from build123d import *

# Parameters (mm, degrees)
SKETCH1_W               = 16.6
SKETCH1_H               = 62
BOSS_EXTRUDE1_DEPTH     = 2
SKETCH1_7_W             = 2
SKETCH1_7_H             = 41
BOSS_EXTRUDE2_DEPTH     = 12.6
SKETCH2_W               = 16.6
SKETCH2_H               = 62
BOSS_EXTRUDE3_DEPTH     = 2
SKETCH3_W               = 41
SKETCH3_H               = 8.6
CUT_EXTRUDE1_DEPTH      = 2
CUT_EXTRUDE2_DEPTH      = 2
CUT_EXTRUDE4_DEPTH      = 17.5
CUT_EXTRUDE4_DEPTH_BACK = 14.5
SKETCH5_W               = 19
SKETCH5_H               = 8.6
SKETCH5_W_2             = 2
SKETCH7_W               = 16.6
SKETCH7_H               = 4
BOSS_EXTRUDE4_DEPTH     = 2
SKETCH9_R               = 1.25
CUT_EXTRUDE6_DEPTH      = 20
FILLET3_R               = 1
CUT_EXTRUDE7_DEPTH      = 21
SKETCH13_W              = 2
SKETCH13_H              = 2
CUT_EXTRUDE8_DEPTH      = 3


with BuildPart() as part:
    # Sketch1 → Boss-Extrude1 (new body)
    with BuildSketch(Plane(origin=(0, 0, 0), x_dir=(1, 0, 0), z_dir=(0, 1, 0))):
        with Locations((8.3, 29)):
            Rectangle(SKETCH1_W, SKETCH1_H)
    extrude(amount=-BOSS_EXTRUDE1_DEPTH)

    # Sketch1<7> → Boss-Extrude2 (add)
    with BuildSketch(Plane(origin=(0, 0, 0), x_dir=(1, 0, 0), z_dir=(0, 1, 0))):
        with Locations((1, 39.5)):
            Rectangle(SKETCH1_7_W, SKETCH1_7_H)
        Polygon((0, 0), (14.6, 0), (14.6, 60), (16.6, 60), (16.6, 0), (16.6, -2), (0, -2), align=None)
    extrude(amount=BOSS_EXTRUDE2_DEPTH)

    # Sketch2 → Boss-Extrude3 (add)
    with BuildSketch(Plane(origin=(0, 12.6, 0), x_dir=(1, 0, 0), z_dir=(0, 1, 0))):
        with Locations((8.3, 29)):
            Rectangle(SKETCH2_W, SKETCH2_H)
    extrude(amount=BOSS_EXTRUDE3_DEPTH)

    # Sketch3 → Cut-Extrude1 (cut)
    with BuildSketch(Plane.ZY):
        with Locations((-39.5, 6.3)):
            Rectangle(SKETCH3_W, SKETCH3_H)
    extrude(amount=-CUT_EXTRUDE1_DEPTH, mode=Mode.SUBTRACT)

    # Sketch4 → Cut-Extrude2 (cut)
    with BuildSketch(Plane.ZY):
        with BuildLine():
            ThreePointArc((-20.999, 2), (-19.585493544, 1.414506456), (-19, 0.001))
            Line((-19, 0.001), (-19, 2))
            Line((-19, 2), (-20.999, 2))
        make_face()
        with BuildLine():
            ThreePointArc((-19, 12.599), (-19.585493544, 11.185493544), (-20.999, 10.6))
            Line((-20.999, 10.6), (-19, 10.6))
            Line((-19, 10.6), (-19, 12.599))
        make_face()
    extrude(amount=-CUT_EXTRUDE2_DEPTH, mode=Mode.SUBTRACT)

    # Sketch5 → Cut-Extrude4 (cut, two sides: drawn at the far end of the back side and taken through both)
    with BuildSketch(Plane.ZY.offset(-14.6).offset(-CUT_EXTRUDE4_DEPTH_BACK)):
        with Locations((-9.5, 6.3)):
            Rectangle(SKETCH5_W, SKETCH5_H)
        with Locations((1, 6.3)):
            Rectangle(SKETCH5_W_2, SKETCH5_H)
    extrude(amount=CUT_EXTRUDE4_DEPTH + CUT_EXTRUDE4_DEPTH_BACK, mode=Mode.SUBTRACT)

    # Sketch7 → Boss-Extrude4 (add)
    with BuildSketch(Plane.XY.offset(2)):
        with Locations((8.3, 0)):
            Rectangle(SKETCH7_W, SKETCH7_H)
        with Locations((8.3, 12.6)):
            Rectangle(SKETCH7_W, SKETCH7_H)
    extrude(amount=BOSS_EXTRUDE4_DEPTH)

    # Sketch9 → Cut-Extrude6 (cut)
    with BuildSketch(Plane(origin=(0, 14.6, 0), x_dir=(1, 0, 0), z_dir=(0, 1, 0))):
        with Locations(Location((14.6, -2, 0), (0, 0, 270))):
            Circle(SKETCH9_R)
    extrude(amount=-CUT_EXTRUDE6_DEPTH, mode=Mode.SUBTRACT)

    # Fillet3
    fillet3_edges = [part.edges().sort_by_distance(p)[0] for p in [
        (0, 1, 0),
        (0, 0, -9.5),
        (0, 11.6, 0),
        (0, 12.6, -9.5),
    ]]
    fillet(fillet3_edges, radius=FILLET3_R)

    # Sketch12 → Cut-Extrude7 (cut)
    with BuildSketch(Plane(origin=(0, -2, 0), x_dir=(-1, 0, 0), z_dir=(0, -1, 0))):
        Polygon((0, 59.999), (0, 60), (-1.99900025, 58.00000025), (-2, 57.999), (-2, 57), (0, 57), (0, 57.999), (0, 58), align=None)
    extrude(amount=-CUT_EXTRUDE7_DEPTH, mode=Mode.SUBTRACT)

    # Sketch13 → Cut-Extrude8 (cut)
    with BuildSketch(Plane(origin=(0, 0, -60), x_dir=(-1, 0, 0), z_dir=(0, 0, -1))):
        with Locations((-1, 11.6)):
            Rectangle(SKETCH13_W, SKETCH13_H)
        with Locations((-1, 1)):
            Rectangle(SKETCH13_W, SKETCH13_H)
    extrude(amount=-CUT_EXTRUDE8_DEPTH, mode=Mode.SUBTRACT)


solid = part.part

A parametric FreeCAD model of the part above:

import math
import FreeCAD as App
import Part
import Sketcher


def edges_at(feature, points):
    """Names of the edges that pass closest to the given points."""
    edges = feature.Shape.Edges
    near = lambda p: min(range(len(edges)), key=lambda i: edges[i].distToShape(Part.Vertex(*p))[0])
    return sorted({f"Edge{near(p) + 1}" for p in points})


def add_polygon(sketch, points):
    """Adds a closed chain of lines whose ends are joined by coincident constraints."""
    first, n = sketch.GeometryCount, len(points)
    for a, b in zip(points, points[1:] + points[:1]):
        sketch.addGeometry(Part.LineSegment(App.Vector(*a, 0), App.Vector(*b, 0)), False)
    for i in range(n):
        sketch.addConstraint(Sketcher.Constraint("Coincident", first + i, 2, first + (i + 1) % n, 1))

doc = App.newDocument("Part")
body = doc.addObject("PartDesign::Body", "Body")

# Sketch on XZ plane
sketch1 = body.newObject("Sketcher::SketchObject", "Sketch")
sketch1.AttachmentSupport = (doc.getObject("XZ_Plane"), [""])
sketch1.MapMode = "FlatFace"
add_polygon(sketch1, [(0, -60), (0, 2), (17, 2), (17, -60)])  # lines 0-3
sketch1.addConstraint([
    Sketcher.Constraint("Vertical", 0),
    Sketcher.Constraint("Horizontal", 1),
    Sketcher.Constraint("Vertical", 2),
    Sketcher.Constraint("Horizontal", 3),
    Sketcher.Constraint("PointOnObject", 0, 2, -2),
    Sketcher.Constraint("DistanceY", 0, 1, 0, 2, 62.0),
    Sketcher.Constraint("DistanceX", 1, 1, 1, 2, 16.6),
    Sketcher.Constraint("DistanceY", -1, 1, 0, 2, 2.0),
])
pad1 = body.newObject("PartDesign::Pad", "Pad")
pad1.Profile = sketch1
pad1.Length = 2

# Sketch on XZ plane
sketch2 = body.newObject("Sketcher::SketchObject", "Sketch001")
sketch2.AttachmentSupport = (doc.getObject("XZ_Plane"), [""])
sketch2.MapMode = "FlatFace"
add_polygon(sketch2, [(0, -60), (0, -19), (2, -19), (2, -60)])  # lines 0-3
add_polygon(sketch2, [(14.6, 0), (0, 0), (0, 2), (16.6, 2), (16.6, -60), (14.6, -60)])  # lines 4-9
sketch2.addConstraint([
    Sketcher.Constraint("Vertical", 0),
    Sketcher.Constraint("Horizontal", 1),
    Sketcher.Constraint("Vertical", 2),
    Sketcher.Constraint("Horizontal", 3),
    Sketcher.Constraint("Horizontal", 4),
    Sketcher.Constraint("Vertical", 5),
    Sketcher.Constraint("Horizontal", 6),
    Sketcher.Constraint("Vertical", 7),
    Sketcher.Constraint("Horizontal", 8),
    Sketcher.Constraint("Vertical", 9),
    Sketcher.Constraint("Coincident", 4, 2, -1, 1),
    Sketcher.Constraint("PointOnObject", 0, 2, -2),
    Sketcher.Constraint("Horizontal", 3, 2, 7, 2),
    Sketcher.Constraint("Equal", 3, 8),
    Sketcher.Constraint("Equal", 8, 5),
    Sketcher.Constraint("DistanceX", 1, 1, 1, 2, 2.0),
    Sketcher.Constraint("DistanceY", 0, 1, 0, 2, 41.0),
    Sketcher.Constraint("DistanceY", 7, 2, 7, 1, 62.0),
    Sketcher.Constraint("DistanceX", 4, 2, 4, 1, 14.6),
])
pad2 = body.newObject("PartDesign::Pad", "Pad001")
pad2.Profile = sketch2
pad2.Length = 12.6
pad2.Reversed = True

# Sketch on XZ plane
sketch3 = body.newObject("Sketcher::SketchObject", "Sketch002")
sketch3.AttachmentSupport = (doc.getObject("XZ_Plane"), [""])
sketch3.MapMode = "FlatFace"
sketch3.AttachmentOffset = App.Placement(App.Vector(0, 0, -12.6), App.Rotation())
add_polygon(sketch3, [(0, -60), (0, 2), (17, 2), (17, -60)])  # lines 0-3
sketch3.addConstraint([
    Sketcher.Constraint("Vertical", 0),
    Sketcher.Constraint("Horizontal", 1),
    Sketcher.Constraint("Vertical", 2),
    Sketcher.Constraint("Horizontal", 3),
    Sketcher.Constraint("PointOnObject", 0, 2, -2),
    Sketcher.Constraint("DistanceY", 0, 1, 0, 2, 62.0),
    Sketcher.Constraint("DistanceX", 1, 1, 1, 2, 16.6),
    Sketcher.Constraint("DistanceY", -1, 1, 0, 2, 2.0),
])
pad3 = body.newObject("PartDesign::Pad", "Pad002")
pad3.Profile = sketch3
pad3.Length = 2
pad3.Reversed = True

# Sketch on YZ plane
sketch4 = body.newObject("Sketcher::SketchObject", "Sketch003")
sketch4.AttachmentSupport = (doc.getObject("YZ_Plane"), [""])
sketch4.MapMode = "FlatFace"
add_polygon(sketch4, [(11, -60), (2, -60), (2, -19), (11, -19)])  # lines 0-3
sketch4.addConstraint([
    Sketcher.Constraint("Horizontal", 0),
    Sketcher.Constraint("Vertical", 1),
    Sketcher.Constraint("Horizontal", 2),
    Sketcher.Constraint("Vertical", 3),
    Sketcher.Constraint("DistanceY", 1, 1, 1, 2, 41.0),
    Sketcher.Constraint("DistanceX", 0, 2, 0, 1, 8.6),
    Sketcher.Constraint("DistanceX", -1, 1, 0, 2, 2.0),
    Sketcher.Constraint("DistanceY", 0, 2, -1, 1, 60.0),
])
pocket1 = body.newObject("PartDesign::Pocket", "Pocket")
pocket1.Profile = sketch4
pocket1.Length = 2
pocket1.Reversed = True

# Sketch on YZ plane
sketch5 = body.newObject("Sketcher::SketchObject", "Sketch004")
sketch5.AttachmentSupport = (doc.getObject("YZ_Plane"), [""])
sketch5.MapMode = "FlatFace"
sketch5.addGeometry([
    Part.ArcOfCircle(Part.Circle(App.Vector(0, -21, 0), App.Vector(0, 0, 1), 2), math.radians(0), math.radians(90)),  # 0
    Part.LineSegment(App.Vector(0, -19, 0), App.Vector(2, -19, 0)),  # 1
    Part.LineSegment(App.Vector(2, -19, 0), App.Vector(2, -21, 0)),  # 2
    Part.ArcOfCircle(Part.Circle(App.Vector(12.6, -21, 0), App.Vector(0, 0, 1), 2), math.radians(90), math.radians(180)),  # 3
    Part.LineSegment(App.Vector(10.6, -21, 0), App.Vector(10.6, -19, 0)),  # 4
    Part.LineSegment(App.Vector(10.6, -19, 0), App.Vector(12.6, -19, 0)),  # 5
], False)
sketch5.addConstraint([
    Sketcher.Constraint("Tangent", 0, 2, 1, 1),
    Sketcher.Constraint("Coincident", 1, 2, 2, 1),
    Sketcher.Constraint("Tangent", 2, 2, 0, 1),
    Sketcher.Constraint("Tangent", 3, 2, 4, 1),
    Sketcher.Constraint("Coincident", 4, 2, 5, 1),
    Sketcher.Constraint("Tangent", 5, 2, 3, 1),
    Sketcher.Constraint("Horizontal", 1),
    Sketcher.Constraint("Vertical", 2),
    Sketcher.Constraint("Vertical", 4),
    Sketcher.Constraint("Horizontal", 5),
    Sketcher.Constraint("Equal", 0, 3),
    Sketcher.Constraint("Horizontal", 0, 3, 3, 3),
    Sketcher.Constraint("DistanceY", 0, 2, -1, 1, 19.0),
    Sketcher.Constraint("DistanceX", -1, 1, 1, 2, 2.0),
    Sketcher.Constraint("Radius", 0, 1.999),
    Sketcher.Constraint("DistanceX", -1, 1, 3, 2, 10.6),
])
pocket2 = body.newObject("PartDesign::Pocket", "Pocket001")
pocket2.Profile = sketch5
pocket2.Length = 2
pocket2.Reversed = True

# Sketch on YZ plane
sketch6 = body.newObject("Sketcher::SketchObject", "Sketch005")
sketch6.AttachmentSupport = (doc.getObject("YZ_Plane"), [""])
sketch6.MapMode = "FlatFace"
sketch6.AttachmentOffset = App.Placement(App.Vector(0, 0, 14.6), App.Rotation())
add_polygon(sketch6, [(11, -19), (2, -19), (2, 2), (11, 2)])  # lines 0-3
sketch6.addConstraint([
    Sketcher.Constraint("Horizontal", 0),
    Sketcher.Constraint("Vertical", 1),
    Sketcher.Constraint("Horizontal", 2),
    Sketcher.Constraint("Vertical", 3),
    Sketcher.Constraint("DistanceY", 1, 1, 1, 2, 21.0),
    Sketcher.Constraint("DistanceX", 0, 2, 0, 1, 8.6),
    Sketcher.Constraint("DistanceX", -1, 1, 0, 2, 2.0),
    Sketcher.Constraint("DistanceY", 0, 2, -1, 1, 19.0),
])
pocket3 = body.newObject("PartDesign::Pocket", "Pocket002")
pocket3.Profile = sketch6
pocket3.Type = "ThroughAll"
pocket3.Midplane = True

# Sketch on XY plane
sketch7 = body.newObject("Sketcher::SketchObject", "Sketch006")
sketch7.AttachmentSupport = (doc.getObject("XY_Plane"), [""])
sketch7.MapMode = "FlatFace"
sketch7.AttachmentOffset = App.Placement(App.Vector(0, 0, 2), App.Rotation())
add_polygon(sketch7, [(0, 2), (0, -2), (16.6, -2), (16.6, 2)])  # lines 0-3
add_polygon(sketch7, [(0, 14.6), (0, 10.6), (16.6, 10.6), (16.6, 14.6)])  # lines 4-7
sketch7.addConstraint([
    Sketcher.Constraint("Vertical", 0),
    Sketcher.Constraint("Horizontal", 1),
    Sketcher.Constraint("Vertical", 2),
    Sketcher.Constraint("Horizontal", 3),
    Sketcher.Constraint("Vertical", 4),
    Sketcher.Constraint("Horizontal", 5),
    Sketcher.Constraint("Vertical", 6),
    Sketcher.Constraint("Horizontal", 7),
    Sketcher.Constraint("Symmetric", 0, 2, 3, 2, -1, 1),
    Sketcher.Constraint("PointOnObject", 4, 2, -2),
    Sketcher.Constraint("Vertical", 2, 2, 5, 2),
    Sketcher.Constraint("Equal", 2, 4),
    Sketcher.Constraint("DistanceY", 0, 2, 0, 1, 4.0),
    Sketcher.Constraint("DistanceX", 1, 1, 1, 2, 16.6),
    Sketcher.Constraint("DistanceY", -1, 1, 4, 2, 10.6),
])
pad4 = body.newObject("PartDesign::Pad", "Pad003")
pad4.Profile = sketch7
pad4.Length = 2

# Sketch on XZ plane
sketch8 = body.newObject("Sketcher::SketchObject", "Sketch007")
sketch8.AttachmentSupport = (doc.getObject("XZ_Plane"), [""])
sketch8.MapMode = "FlatFace"
sketch8.AttachmentOffset = App.Placement(App.Vector(0, 0, -14.6), App.Rotation())
sketch8.addGeometry(Part.Circle(App.Vector(14.6, 2, 0), App.Vector(0, 0, 1), 1.2), False)
sketch8.addConstraint([
    Sketcher.Constraint("Diameter", 0, 2.5),
    Sketcher.Constraint("DistanceY", -1, 1, 0, 3, 2.0),
    Sketcher.Constraint("DistanceX", -1, 1, 0, 3, 14.6),
])
pocket4 = body.newObject("PartDesign::Pocket", "Pocket003")
pocket4.Profile = sketch8
pocket4.Length = 20
pocket4.Reversed = True
doc.recompute()

fillet = body.newObject("PartDesign::Fillet", "Fillet")
fillet.Base = (pocket4, edges_at(pocket4, [
    (0, 1, 0),
    (0, 0, -9.5),
    (0, 11.6, 0),
    (0, 12.6, -9.5),
]))
fillet.Radius = 1

# Sketch on XZ plane
sketch9 = body.newObject("Sketcher::SketchObject", "Sketch008")
sketch9.AttachmentSupport = (doc.getObject("XZ_Plane"), [""])
sketch9.MapMode = "FlatFace"
sketch9.AttachmentOffset = App.Placement(App.Vector(0, 0, 2), App.Rotation())
add_polygon(sketch9, [(0, -60), (1.999, -58), (2, -57.999), (2, -57), (0, -57)])  # lines 0-4
sketch9.addConstraint([
    Sketcher.Constraint("Vertical", 2),
    Sketcher.Constraint("Horizontal", 3),
    Sketcher.Constraint("Vertical", 4),
    Sketcher.Constraint("PointOnObject", 3, 2, -2),
    Sketcher.Constraint("Parallel", 0, 1),
    Sketcher.Constraint("DistanceX", 3, 2, 3, 1, 2.0),
    Sketcher.Constraint("DistanceY", 4, 2, 4, 1, 3.0),
    Sketcher.Constraint("DistanceY", 0, 2, -1, 1, 58.0),
    Sketcher.Constraint("DistanceY", 2, 2, -1, 1, 57.0),
    Sketcher.Constraint("DistanceY", 2, 1, 2, 2, 0.999),
])
pocket5 = body.newObject("PartDesign::Pocket", "Pocket004")
pocket5.Profile = sketch9
pocket5.Length = 21

# Sketch on XY plane
sketch10 = body.newObject("Sketcher::SketchObject", "Sketch009")
sketch10.AttachmentSupport = (doc.getObject("XY_Plane"), [""])
sketch10.MapMode = "FlatFace"
sketch10.AttachmentOffset = App.Placement(App.Vector(0, 0, -60), App.Rotation())
add_polygon(sketch10, [(2, 12.6), (2, 10.6), (0, 10.6), (0, 12.6)])  # lines 0-3
add_polygon(sketch10, [(2, 2), (2, 0), (0, 0), (0, 2)])  # lines 4-7
sketch10.addConstraint([
    Sketcher.Constraint("Vertical", 0),
    Sketcher.Constraint("Horizontal", 1),
    Sketcher.Constraint("Vertical", 2),
    Sketcher.Constraint("Horizontal", 3),
    Sketcher.Constraint("Vertical", 4),
    Sketcher.Constraint("Horizontal", 5),
    Sketcher.Constraint("Vertical", 6),
    Sketcher.Constraint("Horizontal", 7),
    Sketcher.Constraint("Coincident", 5, 2, -1, 1),
    Sketcher.Constraint("PointOnObject", 1, 2, -2),
    Sketcher.Constraint("Vertical", 3, 2, 4, 2),
    Sketcher.Constraint("Equal", 7, 0),
    Sketcher.Constraint("Equal", 2, 4),
    Sketcher.Constraint("DistanceX", 1, 2, 1, 1, 2.0),
    Sketcher.Constraint("DistanceY", -1, 1, 0, 2, 10.6),
])
pocket6 = body.newObject("PartDesign::Pocket", "Pocket005")
pocket6.Profile = sketch10
pocket6.Length = 3
pocket6.Reversed = True

doc.recompute()
